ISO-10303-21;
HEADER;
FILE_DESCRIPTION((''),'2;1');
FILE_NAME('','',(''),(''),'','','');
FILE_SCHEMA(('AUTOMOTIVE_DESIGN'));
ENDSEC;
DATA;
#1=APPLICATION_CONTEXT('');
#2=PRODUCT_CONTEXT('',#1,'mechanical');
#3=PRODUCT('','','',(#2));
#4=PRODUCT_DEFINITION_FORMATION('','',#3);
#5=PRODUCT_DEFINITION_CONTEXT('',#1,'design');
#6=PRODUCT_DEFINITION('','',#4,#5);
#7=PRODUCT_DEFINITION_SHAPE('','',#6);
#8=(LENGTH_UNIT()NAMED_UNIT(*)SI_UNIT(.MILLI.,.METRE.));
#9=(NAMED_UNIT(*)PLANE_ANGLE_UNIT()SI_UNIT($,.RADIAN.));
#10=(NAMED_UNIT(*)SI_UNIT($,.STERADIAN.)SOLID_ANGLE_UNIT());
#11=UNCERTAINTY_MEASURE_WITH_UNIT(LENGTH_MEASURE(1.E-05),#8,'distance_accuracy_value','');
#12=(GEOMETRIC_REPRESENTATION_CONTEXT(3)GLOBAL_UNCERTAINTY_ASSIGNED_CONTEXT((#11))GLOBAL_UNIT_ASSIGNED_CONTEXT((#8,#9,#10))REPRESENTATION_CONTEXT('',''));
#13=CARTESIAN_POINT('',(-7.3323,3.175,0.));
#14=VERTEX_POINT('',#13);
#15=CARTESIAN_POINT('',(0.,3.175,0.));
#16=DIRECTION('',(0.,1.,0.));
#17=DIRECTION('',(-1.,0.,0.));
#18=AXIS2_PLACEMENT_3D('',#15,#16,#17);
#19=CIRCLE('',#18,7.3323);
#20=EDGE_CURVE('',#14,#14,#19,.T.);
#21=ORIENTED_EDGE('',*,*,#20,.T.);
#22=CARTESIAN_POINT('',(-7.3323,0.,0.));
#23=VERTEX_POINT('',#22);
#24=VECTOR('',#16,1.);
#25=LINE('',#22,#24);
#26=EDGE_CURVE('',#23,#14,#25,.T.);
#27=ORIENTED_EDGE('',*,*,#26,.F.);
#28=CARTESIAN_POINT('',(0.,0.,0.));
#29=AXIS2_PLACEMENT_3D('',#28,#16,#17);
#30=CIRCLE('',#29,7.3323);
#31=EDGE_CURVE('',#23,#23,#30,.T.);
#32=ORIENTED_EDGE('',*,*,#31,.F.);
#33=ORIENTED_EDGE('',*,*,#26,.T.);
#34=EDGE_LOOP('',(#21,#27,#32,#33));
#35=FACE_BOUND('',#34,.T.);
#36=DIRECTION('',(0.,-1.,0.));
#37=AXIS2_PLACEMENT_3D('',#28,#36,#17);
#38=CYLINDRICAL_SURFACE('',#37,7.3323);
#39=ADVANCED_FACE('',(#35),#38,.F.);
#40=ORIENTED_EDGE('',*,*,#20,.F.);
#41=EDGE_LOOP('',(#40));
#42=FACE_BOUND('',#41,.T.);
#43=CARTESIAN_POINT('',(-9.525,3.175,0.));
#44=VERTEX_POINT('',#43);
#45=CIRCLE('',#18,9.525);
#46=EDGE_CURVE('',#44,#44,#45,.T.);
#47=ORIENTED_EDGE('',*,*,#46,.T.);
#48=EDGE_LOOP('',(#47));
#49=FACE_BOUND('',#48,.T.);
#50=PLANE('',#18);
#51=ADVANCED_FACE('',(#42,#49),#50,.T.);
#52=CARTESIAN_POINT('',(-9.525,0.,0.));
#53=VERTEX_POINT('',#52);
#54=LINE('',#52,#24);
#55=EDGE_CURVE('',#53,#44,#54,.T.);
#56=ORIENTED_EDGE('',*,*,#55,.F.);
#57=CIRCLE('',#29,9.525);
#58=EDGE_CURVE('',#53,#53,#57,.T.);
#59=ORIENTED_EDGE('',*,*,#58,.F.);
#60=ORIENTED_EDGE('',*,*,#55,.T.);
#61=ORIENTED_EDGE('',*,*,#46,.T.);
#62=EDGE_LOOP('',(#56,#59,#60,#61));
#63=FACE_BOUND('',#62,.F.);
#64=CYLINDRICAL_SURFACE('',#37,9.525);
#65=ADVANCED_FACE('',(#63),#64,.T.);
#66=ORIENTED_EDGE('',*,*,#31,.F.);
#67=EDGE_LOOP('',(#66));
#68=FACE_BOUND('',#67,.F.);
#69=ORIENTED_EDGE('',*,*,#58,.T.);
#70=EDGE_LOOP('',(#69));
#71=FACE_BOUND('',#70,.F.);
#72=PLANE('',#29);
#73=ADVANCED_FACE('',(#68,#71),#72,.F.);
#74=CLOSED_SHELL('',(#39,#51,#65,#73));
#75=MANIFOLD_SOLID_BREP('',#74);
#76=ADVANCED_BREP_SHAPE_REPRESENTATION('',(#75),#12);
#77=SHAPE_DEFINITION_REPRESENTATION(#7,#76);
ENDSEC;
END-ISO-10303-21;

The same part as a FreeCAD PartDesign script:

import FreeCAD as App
import Part
import Sketcher
from FreeCAD import Vector
Q = App.Units.Quantity

doc = App.newDocument("Part")
params = doc.addObject("Spreadsheet::Sheet", "Params")
for row, (alias, value) in enumerate([
    ("sketch1_diameter", "0.75 in"),
    ("pad1_length", "0.125 in"),
], start=1):
    params.set(f"A{row}", alias)
    params.set(f"B{row}", "=" + value)
    params.setAlias(f"B{row}", alias)

body = doc.addObject("PartDesign::Body", "Body")

# Sketch on XZ plane
sketch1 = body.newObject("Sketcher::SketchObject", "Sketch")
sketch1.AttachmentSupport = (doc.getObject("XZ_Plane"), [""])
sketch1.MapMode = "FlatFace"
sketch1.addGeometry(Part.Circle(Vector(0, 0, 0), Vector(0, 0, 1), 9.525), False)
sketch1.addGeometry(Part.Circle(Vector(0, 0, 0), Vector(0, 0, 1), 7.3323), False)
sketch1.addConstraint(Sketcher.Constraint("Coincident", 0, 3, -1, 1))
sketch1.addConstraint(Sketcher.Constraint("Coincident", 1, 3, -1, 1))
sketch1.addConstraint(Sketcher.Constraint("Diameter", 0, Q("0.75 in")))
sketch1.addConstraint(Sketcher.Constraint("Diameter", 1, 14.6646))
sketch1.setExpression("Constraints[2]", "Params.sketch1_diameter")
pad1 = body.newObject("PartDesign::Pad", "Pad")
pad1.Profile = sketch1
pad1.setExpression("Length", "Params.pad1_length")
pad1.Reversed = True

doc.recompute()
